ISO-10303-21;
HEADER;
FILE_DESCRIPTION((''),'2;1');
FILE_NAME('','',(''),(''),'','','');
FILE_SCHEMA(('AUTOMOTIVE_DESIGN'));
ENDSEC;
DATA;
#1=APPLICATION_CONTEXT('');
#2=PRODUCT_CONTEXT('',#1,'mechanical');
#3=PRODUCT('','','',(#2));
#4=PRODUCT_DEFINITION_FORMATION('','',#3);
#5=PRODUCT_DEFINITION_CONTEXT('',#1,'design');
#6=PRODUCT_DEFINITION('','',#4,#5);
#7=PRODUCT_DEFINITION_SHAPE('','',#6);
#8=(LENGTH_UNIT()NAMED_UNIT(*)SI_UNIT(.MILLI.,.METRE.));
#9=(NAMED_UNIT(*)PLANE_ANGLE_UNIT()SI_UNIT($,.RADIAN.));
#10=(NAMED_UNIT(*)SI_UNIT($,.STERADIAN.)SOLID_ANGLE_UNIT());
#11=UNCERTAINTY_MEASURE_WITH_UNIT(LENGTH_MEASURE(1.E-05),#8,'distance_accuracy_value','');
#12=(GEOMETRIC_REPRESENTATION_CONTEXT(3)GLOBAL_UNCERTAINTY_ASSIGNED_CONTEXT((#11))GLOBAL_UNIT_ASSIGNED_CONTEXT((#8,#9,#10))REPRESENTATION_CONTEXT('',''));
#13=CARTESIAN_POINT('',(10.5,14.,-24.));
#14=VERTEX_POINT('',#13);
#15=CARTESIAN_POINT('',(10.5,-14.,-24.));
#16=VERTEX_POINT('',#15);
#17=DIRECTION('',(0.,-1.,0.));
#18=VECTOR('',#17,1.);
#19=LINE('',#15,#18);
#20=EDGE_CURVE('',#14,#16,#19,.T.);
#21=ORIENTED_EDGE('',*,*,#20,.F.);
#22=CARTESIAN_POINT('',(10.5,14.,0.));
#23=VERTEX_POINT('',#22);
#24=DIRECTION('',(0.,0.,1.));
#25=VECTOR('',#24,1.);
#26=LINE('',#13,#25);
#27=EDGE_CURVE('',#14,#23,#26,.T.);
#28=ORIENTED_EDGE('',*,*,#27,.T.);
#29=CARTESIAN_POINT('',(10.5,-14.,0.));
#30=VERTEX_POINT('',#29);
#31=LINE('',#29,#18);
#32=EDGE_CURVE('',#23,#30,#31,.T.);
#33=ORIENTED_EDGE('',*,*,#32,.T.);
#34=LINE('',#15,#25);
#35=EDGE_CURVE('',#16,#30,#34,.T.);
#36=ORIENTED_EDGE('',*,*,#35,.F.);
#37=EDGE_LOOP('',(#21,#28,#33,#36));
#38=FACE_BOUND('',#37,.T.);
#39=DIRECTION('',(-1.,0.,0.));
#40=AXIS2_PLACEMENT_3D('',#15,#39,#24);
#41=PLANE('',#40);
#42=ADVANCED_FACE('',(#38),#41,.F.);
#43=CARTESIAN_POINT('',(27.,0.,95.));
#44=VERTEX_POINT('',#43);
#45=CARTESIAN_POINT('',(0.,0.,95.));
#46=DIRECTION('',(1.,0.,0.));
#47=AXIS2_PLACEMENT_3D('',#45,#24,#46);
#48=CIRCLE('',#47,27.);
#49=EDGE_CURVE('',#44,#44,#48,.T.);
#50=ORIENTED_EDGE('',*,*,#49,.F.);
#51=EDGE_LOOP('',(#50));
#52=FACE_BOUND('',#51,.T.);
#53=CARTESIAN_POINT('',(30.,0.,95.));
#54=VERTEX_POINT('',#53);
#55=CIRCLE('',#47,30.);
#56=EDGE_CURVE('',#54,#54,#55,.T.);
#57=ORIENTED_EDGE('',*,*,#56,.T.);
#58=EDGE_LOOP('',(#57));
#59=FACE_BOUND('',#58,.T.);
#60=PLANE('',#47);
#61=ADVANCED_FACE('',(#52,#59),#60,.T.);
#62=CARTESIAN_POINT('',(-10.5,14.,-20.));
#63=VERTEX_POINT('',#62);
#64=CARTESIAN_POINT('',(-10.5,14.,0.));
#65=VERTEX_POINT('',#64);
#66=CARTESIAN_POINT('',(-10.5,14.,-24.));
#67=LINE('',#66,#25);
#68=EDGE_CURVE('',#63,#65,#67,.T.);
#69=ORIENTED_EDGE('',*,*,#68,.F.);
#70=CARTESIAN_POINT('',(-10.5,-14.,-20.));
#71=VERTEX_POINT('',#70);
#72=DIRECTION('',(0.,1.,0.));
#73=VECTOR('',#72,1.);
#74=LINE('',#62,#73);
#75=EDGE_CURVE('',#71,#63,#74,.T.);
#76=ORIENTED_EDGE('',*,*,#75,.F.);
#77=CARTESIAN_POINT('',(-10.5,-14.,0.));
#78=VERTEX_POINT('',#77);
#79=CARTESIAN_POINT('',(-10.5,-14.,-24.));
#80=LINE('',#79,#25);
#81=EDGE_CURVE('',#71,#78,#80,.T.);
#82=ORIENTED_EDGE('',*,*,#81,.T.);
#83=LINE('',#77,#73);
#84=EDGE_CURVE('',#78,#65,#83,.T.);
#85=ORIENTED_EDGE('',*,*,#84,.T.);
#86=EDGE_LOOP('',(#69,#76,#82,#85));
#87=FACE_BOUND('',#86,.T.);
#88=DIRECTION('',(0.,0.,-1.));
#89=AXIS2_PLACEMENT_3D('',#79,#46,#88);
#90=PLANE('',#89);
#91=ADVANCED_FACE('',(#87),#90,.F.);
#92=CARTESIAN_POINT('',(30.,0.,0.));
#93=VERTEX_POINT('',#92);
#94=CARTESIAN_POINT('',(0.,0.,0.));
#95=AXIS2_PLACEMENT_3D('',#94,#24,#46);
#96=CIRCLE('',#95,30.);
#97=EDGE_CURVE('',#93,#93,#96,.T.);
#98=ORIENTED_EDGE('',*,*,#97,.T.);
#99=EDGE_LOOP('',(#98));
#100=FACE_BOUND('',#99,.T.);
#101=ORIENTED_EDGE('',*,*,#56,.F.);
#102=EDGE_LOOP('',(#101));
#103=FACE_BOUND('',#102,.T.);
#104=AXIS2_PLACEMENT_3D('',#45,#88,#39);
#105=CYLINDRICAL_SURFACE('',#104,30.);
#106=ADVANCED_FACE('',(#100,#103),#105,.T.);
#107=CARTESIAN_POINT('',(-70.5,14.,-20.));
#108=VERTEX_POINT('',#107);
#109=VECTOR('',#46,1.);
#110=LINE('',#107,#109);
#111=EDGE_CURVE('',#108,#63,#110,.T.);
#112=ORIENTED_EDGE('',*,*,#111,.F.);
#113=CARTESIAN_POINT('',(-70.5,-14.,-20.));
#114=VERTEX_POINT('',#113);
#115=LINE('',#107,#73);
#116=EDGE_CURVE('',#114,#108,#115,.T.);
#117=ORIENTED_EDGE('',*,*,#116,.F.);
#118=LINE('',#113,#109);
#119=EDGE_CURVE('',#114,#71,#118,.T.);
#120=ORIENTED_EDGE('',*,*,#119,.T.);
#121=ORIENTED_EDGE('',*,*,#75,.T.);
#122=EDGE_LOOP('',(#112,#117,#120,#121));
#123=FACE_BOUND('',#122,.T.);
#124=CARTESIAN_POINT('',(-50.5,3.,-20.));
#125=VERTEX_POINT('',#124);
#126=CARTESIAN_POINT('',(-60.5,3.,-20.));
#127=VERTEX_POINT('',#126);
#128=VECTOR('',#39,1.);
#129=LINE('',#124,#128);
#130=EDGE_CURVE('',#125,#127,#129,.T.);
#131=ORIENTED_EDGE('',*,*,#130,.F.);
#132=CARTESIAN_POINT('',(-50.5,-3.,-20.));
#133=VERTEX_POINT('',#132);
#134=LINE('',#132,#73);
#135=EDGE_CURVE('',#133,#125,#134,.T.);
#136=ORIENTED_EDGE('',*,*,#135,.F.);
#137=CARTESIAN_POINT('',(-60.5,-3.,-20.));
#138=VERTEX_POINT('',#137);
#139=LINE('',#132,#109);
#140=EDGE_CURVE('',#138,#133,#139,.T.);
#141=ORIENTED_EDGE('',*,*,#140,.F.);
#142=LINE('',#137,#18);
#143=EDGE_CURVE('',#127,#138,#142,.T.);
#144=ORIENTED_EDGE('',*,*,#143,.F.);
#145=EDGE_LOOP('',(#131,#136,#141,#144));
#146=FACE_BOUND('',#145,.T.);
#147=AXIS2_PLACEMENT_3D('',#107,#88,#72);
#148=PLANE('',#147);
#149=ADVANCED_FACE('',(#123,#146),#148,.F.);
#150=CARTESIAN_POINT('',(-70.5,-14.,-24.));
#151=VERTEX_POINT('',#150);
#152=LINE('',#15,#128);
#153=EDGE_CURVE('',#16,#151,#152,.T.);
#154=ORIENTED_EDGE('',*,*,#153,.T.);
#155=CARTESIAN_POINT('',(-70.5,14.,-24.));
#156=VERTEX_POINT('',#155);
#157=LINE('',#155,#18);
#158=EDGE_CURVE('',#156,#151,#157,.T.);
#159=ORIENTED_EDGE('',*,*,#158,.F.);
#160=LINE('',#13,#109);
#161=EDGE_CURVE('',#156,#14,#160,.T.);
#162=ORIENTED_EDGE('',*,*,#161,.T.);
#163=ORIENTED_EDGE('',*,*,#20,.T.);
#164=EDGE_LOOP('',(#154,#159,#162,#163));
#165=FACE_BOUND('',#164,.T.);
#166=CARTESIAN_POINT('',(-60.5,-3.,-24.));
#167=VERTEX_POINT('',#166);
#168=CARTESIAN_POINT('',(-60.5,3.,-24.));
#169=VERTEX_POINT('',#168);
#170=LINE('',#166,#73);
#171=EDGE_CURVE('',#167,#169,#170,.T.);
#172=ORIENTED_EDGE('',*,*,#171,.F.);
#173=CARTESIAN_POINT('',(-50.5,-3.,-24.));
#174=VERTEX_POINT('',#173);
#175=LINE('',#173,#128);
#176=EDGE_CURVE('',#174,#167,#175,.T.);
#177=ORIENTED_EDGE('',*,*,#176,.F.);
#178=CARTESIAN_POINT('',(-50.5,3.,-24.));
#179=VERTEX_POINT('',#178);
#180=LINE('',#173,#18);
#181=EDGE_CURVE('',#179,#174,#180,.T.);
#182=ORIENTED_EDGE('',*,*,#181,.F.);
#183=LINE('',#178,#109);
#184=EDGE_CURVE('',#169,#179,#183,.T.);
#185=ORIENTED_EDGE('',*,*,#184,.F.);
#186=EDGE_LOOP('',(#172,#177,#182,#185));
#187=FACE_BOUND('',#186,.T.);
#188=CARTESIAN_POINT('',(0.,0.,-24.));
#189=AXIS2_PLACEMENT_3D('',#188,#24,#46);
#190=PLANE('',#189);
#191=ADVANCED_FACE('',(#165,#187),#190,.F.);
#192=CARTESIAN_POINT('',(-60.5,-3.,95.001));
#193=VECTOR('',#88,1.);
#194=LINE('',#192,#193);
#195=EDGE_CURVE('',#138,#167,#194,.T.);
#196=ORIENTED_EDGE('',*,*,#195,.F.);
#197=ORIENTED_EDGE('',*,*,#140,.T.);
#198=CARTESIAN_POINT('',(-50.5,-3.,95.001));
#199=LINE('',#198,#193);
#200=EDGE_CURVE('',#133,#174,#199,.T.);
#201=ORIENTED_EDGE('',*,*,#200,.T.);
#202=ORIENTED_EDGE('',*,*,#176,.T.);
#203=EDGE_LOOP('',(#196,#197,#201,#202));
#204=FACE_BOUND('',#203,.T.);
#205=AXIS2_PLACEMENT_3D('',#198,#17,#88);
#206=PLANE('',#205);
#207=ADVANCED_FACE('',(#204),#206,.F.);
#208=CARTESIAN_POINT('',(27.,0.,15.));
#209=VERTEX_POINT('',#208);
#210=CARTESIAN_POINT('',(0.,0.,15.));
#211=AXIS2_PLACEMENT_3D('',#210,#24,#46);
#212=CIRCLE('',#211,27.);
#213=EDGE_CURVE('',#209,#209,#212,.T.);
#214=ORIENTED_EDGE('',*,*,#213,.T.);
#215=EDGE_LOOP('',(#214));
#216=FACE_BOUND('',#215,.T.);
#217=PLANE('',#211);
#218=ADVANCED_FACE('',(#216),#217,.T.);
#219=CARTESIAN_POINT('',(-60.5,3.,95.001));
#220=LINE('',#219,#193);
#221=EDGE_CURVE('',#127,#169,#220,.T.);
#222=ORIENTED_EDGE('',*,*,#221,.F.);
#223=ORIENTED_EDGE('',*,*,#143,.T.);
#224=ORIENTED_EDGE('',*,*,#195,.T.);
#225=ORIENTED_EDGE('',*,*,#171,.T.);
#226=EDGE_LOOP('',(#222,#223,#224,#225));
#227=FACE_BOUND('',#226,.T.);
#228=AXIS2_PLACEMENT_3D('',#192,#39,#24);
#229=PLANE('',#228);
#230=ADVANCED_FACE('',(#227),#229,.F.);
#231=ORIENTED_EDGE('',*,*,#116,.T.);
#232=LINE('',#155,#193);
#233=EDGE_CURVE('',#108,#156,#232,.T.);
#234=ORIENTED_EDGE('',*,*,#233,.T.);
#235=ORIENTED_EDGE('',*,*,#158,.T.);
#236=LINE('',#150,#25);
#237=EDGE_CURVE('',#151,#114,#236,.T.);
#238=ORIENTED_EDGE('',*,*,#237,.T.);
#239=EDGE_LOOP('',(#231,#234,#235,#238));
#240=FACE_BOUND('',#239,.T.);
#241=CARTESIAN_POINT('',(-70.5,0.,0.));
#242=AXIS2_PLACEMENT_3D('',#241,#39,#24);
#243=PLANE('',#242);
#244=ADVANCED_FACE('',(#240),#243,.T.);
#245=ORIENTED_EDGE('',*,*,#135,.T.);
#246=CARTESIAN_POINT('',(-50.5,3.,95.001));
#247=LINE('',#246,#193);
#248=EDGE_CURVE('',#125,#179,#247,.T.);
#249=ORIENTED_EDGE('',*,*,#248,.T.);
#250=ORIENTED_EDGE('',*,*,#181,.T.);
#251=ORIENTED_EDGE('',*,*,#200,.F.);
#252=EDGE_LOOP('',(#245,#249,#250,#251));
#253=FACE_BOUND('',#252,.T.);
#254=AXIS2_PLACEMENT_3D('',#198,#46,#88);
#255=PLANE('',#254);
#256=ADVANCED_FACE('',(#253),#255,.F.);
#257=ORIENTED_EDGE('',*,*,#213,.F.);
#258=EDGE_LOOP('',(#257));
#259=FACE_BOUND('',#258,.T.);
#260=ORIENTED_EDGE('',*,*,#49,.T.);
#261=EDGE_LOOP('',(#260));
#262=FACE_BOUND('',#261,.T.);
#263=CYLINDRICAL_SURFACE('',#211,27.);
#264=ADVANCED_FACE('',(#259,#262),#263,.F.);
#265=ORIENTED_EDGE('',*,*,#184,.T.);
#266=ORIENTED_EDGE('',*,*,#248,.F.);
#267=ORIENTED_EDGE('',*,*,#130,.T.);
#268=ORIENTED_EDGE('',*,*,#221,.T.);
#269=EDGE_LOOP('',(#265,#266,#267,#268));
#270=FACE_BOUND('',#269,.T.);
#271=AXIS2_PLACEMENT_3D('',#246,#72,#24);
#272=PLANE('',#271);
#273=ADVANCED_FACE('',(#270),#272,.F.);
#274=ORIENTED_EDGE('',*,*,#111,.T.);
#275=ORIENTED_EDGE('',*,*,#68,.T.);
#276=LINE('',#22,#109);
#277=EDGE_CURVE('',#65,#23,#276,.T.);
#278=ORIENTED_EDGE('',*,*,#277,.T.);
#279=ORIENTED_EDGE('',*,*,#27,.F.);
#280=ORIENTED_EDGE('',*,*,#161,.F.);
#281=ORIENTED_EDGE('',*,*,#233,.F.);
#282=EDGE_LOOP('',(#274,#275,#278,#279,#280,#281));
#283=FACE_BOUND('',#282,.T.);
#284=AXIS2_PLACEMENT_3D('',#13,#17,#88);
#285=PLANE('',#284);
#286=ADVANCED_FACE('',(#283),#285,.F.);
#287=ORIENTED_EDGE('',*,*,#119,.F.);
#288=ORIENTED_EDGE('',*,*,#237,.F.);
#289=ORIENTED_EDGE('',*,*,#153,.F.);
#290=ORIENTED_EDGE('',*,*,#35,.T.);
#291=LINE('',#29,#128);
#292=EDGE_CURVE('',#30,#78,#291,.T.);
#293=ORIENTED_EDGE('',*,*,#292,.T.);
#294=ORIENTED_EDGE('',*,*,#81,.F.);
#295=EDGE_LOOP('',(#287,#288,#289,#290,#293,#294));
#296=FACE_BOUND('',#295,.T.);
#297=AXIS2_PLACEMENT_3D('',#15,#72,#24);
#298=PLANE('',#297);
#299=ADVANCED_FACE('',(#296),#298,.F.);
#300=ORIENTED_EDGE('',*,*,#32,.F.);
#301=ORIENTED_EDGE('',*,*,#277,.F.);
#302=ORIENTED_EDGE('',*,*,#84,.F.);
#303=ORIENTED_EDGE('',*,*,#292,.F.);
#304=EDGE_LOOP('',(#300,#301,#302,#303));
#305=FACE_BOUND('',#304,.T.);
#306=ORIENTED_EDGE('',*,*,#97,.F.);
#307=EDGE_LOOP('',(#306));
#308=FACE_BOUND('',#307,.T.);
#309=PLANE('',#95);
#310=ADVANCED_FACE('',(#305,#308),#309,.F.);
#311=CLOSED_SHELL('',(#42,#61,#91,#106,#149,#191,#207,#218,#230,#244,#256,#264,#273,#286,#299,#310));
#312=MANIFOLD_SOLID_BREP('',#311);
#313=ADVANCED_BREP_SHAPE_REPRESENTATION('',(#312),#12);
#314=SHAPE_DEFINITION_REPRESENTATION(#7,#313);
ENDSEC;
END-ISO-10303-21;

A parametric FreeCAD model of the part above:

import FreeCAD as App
import Part
import Sketcher

V = App.Vector

doc = App.newDocument("Part")
body = doc.addObject("PartDesign::Body", "Body")

# Sketch on XY plane
sketch1 = body.newObject("Sketcher::SketchObject", "Sketch")
sketch1.AttachmentSupport = (doc.getObject("XY_Plane"), [""])
sketch1.MapMode = "FlatFace"
sketch1.addGeometry(Part.Circle(V(0, 0, 0), V(0, 0, 1), 30), False)
sketch1.addConstraint(Sketcher.Constraint("Coincident", 0, 3, -1, 1))
sketch1.addConstraint(Sketcher.Constraint("Diameter", 0, 60.0))
pad1 = body.newObject("PartDesign::Pad", "Pad")
pad1.Profile = sketch1
pad1.Length = 95

# Sketch on XY plane
sketch2 = body.newObject("Sketcher::SketchObject", "Sketch001")
sketch2.AttachmentSupport = (doc.getObject("XY_Plane"), [""])
sketch2.MapMode = "FlatFace"
sketch2.AttachmentOffset = App.Placement(V(0, 0, 95), App.Rotation())
sketch2.addGeometry(Part.Circle(V(0, 0, 0), V(0, 0, 1), 27), False)
sketch2.addConstraint(Sketcher.Constraint("Coincident", 0, 3, -1, 1))
sketch2.addConstraint(Sketcher.Constraint("Diameter", 0, 54.0))
pocket1 = body.newObject("PartDesign::Pocket", "Pocket")
pocket1.Profile = sketch2
pocket1.Length = 80

# Sketch on XY plane
sketch3 = body.newObject("Sketcher::SketchObject", "Sketch002")
sketch3.AttachmentSupport = (doc.getObject("XY_Plane"), [""])
sketch3.MapMode = "FlatFace"
sketch3.addGeometry(Part.LineSegment(V(10, 14, 0), V(10, -14, 0)), False)
sketch3.addGeometry(Part.LineSegment(V(10, -14, 0), V(-10, -14, 0)), False)
sketch3.addGeometry(Part.LineSegment(V(-10, -14, 0), V(-10, 14, 0)), False)
sketch3.addGeometry(Part.LineSegment(V(-10, 14, 0), V(10, 14, 0)), False)
sketch3.addConstraint(Sketcher.Constraint("Coincident", 0, 2, 1, 1))
sketch3.addConstraint(Sketcher.Constraint("Coincident", 1, 2, 2, 1))
sketch3.addConstraint(Sketcher.Constraint("Coincident", 2, 2, 3, 1))
sketch3.addConstraint(Sketcher.Constraint("Coincident", 3, 2, 0, 1))
sketch3.addConstraint(Sketcher.Constraint("Vertical", 0))
sketch3.addConstraint(Sketcher.Constraint("Horizontal", 1))
sketch3.addConstraint(Sketcher.Constraint("Vertical", 2))
sketch3.addConstraint(Sketcher.Constraint("Horizontal", 3))
sketch3.addConstraint(Sketcher.Constraint("Symmetric", 0, 2, 2, 2, -1, 1))
sketch3.addConstraint(Sketcher.Constraint("DistanceX", 1, 2, 1, 1, 21.0))
sketch3.addConstraint(Sketcher.Constraint("DistanceY", 0, 2, 0, 1, 28.0))
pad2 = body.newObject("PartDesign::Pad", "Pad001")
pad2.Profile = sketch3
pad2.Length = 24
pad2.Reversed = True

# Sketch on YZ plane
sketch4 = body.newObject("Sketcher::SketchObject", "Sketch003")
sketch4.AttachmentSupport = (doc.getObject("YZ_Plane"), [""])
sketch4.MapMode = "FlatFace"
sketch4.AttachmentOffset = App.Placement(V(0, 0, -10.5), App.Rotation())
sketch4.addGeometry(Part.LineSegment(V(14, -24, 0), V(-14, -24, 0)), False)
sketch4.addGeometry(Part.LineSegment(V(-14, -24, 0), V(-14, -20, 0)), False)
sketch4.addGeometry(Part.LineSegment(V(-14, -20, 0), V(14, -20, 0)), False)
sketch4.addGeometry(Part.LineSegment(V(14, -20, 0), V(14, -24, 0)), False)
sketch4.addConstraint(Sketcher.Constraint("Coincident", 0, 2, 1, 1))
sketch4.addConstraint(Sketcher.Constraint("Coincident", 1, 2, 2, 1))
sketch4.addConstraint(Sketcher.Constraint("Coincident", 2, 2, 3, 1))
sketch4.addConstraint(Sketcher.Constraint("Coincident", 3, 2, 0, 1))
sketch4.addConstraint(Sketcher.Constraint("Horizontal", 0))
sketch4.addConstraint(Sketcher.Constraint("Vertical", 1))
sketch4.addConstraint(Sketcher.Constraint("Horizontal", 2))
sketch4.addConstraint(Sketcher.Constraint("Vertical", 3))
sketch4.addConstraint(Sketcher.Constraint("DistanceX", 0, 2, 0, 1, 28.0))
sketch4.addConstraint(Sketcher.Constraint("DistanceY", 1, 1, 1, 2, 4.0))
sketch4.addConstraint(Sketcher.Constraint("DistanceX", 0, 2, -1, 1, 14.0))
sketch4.addConstraint(Sketcher.Constraint("DistanceY", 0, 2, -1, 1, 24.0))
pad3 = body.newObject("PartDesign::Pad", "Pad002")
pad3.Profile = sketch4
pad3.Length = 60
pad3.Reversed = True

# Sketch on XY plane
sketch5 = body.newObject("Sketcher::SketchObject", "Sketch004")
sketch5.AttachmentSupport = (doc.getObject("XY_Plane"), [""])
sketch5.MapMode = "FlatFace"
sketch5.AttachmentOffset = App.Placement(V(0, 0, -24), App.Rotation())
sketch5.addGeometry(Part.LineSegment(V(-50, 3, 0), V(-50, -3, 0)), False)
sketch5.addGeometry(Part.LineSegment(V(-50, -3, 0), V(-60, -3, 0)), False)
sketch5.addGeometry(Part.LineSegment(V(-60, -3, 0), V(-60, 3, 0)), False)
sketch5.addGeometry(Part.LineSegment(V(-60, 3, 0), V(-50, 3, 0)), False)
sketch5.addConstraint(Sketcher.Constraint("Coincident", 0, 2, 1, 1))
sketch5.addConstraint(Sketcher.Constraint("Coincident", 1, 2, 2, 1))
sketch5.addConstraint(Sketcher.Constraint("Coincident", 2, 2, 3, 1))
sketch5.addConstraint(Sketcher.Constraint("Coincident", 3, 2, 0, 1))
sketch5.addConstraint(Sketcher.Constraint("Vertical", 0))
sketch5.addConstraint(Sketcher.Constraint("Horizontal", 1))
sketch5.addConstraint(Sketcher.Constraint("Vertical", 2))
sketch5.addConstraint(Sketcher.Constraint("Horizontal", 3))
sketch5.addConstraint(Sketcher.Constraint("DistanceX", 1, 2, 1, 1, 10.0))
sketch5.addConstraint(Sketcher.Constraint("DistanceY", 0, 2, 0, 1, 6.0))
sketch5.addConstraint(Sketcher.Constraint("DistanceY", 0, 2, -1, 1, 3.0))
sketch5.addConstraint(Sketcher.Constraint("DistanceX", 0, 2, -1, 1, 50.5))
pocket2 = body.newObject("PartDesign::Pocket", "Pocket001")
pocket2.Profile = sketch5
pocket2.Type = "UpToFirst"
pocket2.Reversed = True

doc.recompute()
